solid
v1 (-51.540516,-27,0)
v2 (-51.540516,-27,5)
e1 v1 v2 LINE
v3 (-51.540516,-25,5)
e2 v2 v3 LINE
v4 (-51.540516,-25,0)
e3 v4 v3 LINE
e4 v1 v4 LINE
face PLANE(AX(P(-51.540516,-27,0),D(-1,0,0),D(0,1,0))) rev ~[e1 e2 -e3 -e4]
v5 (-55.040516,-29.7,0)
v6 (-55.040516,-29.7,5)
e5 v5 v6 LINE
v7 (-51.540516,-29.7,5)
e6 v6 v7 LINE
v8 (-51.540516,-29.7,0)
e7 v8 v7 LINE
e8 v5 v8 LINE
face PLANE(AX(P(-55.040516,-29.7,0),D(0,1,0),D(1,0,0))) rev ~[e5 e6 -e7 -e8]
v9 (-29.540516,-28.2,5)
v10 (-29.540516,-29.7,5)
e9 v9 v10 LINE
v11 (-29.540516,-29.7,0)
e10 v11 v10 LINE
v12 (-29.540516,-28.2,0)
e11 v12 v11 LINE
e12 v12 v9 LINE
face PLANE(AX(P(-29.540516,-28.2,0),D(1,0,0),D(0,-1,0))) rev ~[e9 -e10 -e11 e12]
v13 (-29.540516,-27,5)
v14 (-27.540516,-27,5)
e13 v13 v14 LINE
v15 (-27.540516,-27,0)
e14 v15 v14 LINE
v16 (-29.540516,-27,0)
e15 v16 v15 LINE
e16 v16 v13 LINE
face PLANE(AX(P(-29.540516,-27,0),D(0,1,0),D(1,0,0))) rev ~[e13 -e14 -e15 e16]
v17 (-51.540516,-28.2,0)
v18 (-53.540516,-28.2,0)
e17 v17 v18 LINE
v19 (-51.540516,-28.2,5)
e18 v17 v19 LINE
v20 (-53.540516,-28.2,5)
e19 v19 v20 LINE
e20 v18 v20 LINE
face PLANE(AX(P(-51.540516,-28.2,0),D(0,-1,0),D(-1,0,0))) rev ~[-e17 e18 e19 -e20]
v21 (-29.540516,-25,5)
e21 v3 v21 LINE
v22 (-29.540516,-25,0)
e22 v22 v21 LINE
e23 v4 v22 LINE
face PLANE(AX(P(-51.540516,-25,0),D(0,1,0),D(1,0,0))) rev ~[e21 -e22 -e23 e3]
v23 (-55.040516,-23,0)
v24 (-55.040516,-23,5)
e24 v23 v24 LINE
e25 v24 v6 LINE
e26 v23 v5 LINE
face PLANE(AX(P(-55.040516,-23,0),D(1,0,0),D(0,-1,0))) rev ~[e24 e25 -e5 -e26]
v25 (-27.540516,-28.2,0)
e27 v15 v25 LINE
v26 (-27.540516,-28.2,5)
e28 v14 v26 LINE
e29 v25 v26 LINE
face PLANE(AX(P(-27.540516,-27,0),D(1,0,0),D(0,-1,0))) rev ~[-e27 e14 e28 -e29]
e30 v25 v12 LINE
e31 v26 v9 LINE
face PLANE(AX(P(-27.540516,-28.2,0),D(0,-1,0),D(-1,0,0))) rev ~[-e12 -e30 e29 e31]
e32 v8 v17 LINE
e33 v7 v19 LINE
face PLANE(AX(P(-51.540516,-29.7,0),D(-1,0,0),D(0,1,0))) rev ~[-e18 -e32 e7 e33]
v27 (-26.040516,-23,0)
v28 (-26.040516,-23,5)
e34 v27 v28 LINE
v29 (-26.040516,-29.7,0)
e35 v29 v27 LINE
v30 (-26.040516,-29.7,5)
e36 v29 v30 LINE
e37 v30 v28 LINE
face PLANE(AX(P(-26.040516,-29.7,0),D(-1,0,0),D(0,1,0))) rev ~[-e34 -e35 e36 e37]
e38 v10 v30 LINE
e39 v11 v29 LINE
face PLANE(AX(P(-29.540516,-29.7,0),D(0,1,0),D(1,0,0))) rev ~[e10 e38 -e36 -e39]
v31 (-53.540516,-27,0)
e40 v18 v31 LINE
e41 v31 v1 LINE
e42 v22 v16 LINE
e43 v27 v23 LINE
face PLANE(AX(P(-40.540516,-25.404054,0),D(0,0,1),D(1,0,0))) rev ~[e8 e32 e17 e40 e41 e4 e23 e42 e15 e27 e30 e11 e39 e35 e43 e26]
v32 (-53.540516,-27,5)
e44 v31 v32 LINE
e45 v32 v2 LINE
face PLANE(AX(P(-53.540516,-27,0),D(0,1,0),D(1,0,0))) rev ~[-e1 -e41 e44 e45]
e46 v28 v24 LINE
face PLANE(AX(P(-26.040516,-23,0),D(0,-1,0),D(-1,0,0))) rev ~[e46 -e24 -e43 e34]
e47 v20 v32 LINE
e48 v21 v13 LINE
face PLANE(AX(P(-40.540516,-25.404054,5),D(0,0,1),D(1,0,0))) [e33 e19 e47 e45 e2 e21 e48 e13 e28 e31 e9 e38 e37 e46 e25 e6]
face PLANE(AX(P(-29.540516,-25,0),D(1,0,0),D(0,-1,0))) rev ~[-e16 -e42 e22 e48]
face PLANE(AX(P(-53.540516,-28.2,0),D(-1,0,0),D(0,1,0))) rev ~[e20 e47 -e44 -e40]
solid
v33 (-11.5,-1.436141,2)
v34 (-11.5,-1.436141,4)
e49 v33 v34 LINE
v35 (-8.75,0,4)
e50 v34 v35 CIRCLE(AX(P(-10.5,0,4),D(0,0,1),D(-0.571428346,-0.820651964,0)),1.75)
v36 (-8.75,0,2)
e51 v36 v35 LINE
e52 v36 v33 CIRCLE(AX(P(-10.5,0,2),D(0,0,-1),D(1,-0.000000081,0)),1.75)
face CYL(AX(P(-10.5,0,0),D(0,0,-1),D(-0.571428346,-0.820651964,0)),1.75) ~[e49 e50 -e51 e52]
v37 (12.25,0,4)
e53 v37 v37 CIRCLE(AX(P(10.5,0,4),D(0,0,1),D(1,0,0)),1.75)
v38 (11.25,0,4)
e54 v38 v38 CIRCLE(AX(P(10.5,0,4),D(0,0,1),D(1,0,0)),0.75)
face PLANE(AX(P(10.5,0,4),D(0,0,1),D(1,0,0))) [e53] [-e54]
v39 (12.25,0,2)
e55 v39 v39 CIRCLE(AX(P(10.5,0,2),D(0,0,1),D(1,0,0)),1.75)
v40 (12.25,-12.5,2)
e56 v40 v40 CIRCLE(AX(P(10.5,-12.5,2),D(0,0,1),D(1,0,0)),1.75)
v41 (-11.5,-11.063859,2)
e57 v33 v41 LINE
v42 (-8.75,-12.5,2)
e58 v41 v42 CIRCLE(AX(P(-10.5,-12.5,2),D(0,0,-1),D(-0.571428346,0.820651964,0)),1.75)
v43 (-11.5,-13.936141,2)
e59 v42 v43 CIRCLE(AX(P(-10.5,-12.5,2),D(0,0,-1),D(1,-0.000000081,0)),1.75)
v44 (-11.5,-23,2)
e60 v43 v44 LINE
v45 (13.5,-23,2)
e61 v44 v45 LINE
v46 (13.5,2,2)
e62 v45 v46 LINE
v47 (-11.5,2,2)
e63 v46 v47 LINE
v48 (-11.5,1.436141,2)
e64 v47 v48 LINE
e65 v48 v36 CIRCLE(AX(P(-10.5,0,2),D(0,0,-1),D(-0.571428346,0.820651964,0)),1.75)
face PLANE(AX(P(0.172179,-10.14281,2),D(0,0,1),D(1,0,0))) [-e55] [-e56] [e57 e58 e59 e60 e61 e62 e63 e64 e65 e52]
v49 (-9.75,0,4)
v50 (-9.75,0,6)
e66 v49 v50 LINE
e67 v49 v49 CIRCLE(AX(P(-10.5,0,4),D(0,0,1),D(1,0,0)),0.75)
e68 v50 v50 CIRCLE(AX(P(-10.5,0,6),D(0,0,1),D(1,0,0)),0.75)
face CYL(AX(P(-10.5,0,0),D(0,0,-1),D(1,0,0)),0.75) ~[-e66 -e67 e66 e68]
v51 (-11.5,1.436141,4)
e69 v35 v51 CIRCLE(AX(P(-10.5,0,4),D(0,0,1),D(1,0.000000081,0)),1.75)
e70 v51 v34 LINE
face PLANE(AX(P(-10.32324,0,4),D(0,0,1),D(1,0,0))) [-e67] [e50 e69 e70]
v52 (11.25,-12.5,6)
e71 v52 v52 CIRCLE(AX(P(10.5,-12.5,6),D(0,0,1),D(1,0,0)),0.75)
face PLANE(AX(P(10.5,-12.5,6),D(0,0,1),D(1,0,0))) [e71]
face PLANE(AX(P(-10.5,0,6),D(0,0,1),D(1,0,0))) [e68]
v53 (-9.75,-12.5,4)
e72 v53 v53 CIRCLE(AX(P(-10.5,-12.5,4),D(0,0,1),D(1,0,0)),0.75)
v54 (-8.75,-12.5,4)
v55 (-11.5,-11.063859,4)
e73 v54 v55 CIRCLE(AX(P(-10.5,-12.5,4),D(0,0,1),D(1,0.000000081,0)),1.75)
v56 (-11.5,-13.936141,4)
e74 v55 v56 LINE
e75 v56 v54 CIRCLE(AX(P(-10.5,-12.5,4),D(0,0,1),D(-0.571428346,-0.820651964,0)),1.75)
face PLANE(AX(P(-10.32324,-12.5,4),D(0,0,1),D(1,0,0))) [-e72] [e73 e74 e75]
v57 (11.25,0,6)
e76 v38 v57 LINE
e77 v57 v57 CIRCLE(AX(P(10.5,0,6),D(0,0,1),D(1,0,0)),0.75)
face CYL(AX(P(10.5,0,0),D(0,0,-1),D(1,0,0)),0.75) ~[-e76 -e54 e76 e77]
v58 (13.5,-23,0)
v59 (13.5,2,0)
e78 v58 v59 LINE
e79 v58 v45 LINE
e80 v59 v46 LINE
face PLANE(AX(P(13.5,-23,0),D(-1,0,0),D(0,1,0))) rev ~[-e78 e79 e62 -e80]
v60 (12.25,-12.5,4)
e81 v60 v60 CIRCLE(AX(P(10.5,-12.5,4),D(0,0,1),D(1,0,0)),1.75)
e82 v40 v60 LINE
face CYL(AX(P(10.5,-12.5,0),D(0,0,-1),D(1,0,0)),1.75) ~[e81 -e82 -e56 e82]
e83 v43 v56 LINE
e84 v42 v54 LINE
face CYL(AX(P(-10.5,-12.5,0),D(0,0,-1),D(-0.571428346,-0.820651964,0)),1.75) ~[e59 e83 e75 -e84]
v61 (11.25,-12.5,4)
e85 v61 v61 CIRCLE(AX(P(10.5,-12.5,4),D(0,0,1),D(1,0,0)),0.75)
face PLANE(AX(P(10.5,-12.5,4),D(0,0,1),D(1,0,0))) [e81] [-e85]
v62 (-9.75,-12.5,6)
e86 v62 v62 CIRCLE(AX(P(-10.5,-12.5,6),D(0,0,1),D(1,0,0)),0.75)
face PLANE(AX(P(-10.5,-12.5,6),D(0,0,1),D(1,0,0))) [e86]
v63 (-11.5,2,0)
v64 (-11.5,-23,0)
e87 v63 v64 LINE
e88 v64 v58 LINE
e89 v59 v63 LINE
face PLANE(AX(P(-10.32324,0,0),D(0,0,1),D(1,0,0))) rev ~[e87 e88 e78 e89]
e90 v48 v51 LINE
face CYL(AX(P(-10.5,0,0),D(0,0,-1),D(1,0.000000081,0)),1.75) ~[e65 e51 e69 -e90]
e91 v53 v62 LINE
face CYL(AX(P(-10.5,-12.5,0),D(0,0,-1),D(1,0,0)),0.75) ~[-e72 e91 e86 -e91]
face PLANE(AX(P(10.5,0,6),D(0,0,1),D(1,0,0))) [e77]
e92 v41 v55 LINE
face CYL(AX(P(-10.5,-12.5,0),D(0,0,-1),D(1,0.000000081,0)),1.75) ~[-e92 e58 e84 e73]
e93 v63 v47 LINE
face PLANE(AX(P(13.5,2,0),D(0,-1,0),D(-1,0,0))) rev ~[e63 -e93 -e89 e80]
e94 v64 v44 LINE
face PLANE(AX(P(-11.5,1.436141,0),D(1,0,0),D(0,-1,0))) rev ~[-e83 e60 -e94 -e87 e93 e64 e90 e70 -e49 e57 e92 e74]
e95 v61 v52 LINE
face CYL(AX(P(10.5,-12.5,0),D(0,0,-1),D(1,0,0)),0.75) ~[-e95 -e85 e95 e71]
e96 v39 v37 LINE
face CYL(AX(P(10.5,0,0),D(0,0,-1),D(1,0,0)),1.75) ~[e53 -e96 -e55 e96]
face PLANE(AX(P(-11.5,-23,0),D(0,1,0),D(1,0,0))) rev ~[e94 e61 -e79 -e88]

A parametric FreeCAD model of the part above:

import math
import FreeCAD as App
import Part
import Sketcher
from FreeCAD import Vector


def add_polygon(sketch, points):
    """Adds a closed chain of lines whose ends are joined by coincident constraints."""
    first, n = sketch.GeometryCount, len(points)
    for a, b in zip(points, points[1:] + points[:1]):
        sketch.addGeometry(Part.LineSegment(App.Vector(*a, 0), App.Vector(*b, 0)), False)
    for i in range(n):
        sketch.addConstraint(Sketcher.Constraint("Coincident", first + i, 2, first + (i + 1) % n, 1))

doc = App.newDocument("Part")
body = doc.addObject("PartDesign::Body", "Body")

# Sketch on XY plane
sketch1 = body.newObject("Sketcher::SketchObject", "Sketch")
sketch1.AttachmentSupport = (doc.getObject("XY_Plane"), [""])
sketch1.MapMode = "FlatFace"
sketch1.addGeometry([
    Part.LineSegment(Vector(13.5, 2, 0), Vector(-11.5, 2, 0)),  # 0
    Part.LineSegment(Vector(-11.5, 2, 0), Vector(-11.5, 1.436141, 0)),  # 1
    Part.ArcOfCircle(Part.Circle(Vector(-10.5, 0, 0), Vector(0, 0, 1), 1.75), math.radians(0.000005), math.radians(124.849889)),  # 2
    Part.ArcOfCircle(Part.Circle(Vector(-10.5, 0, 0), Vector(0, 0, 1), 1.75), math.radians(-124.849889), math.radians(-0.000005)),  # 3
    Part.LineSegment(Vector(-11.5, -1.436141, 0), Vector(-11.5, -11.063859, 0)),  # 4
    Part.ArcOfCircle(Part.Circle(Vector(-10.5, -12.5, 0), Vector(0, 0, 1), 1.75), math.radians(0.000005), math.radians(124.849889)),  # 5
    Part.ArcOfCircle(Part.Circle(Vector(-10.5, -12.5, 0), Vector(0, 0, 1), 1.75), math.radians(-124.849889), math.radians(-0.000005)),  # 6
    Part.LineSegment(Vector(-11.5, -13.936141, 0), Vector(-11.5, -23, 0)),  # 7
    Part.LineSegment(Vector(-11.5, -23, 0), Vector(13.5, -23, 0)),  # 8
    Part.LineSegment(Vector(13.5, -23, 0), Vector(13.5, 2, 0)),  # 9
    Part.Circle(Vector(10.5, -12.5, 0), Vector(0, 0, 1), 1.75),  # 10
    Part.Circle(Vector(10.5, 0, 0), Vector(0, 0, 1), 1.75),  # 11
], False)
sketch1.addConstraint([
    Sketcher.Constraint("Coincident", 0, 2, 1, 1),
    Sketcher.Constraint("Coincident", 1, 2, 2, 2),
    Sketcher.Constraint("Tangent", 2, 1, 3, 2),
    Sketcher.Constraint("Coincident", 3, 1, 4, 1),
    Sketcher.Constraint("Coincident", 4, 2, 5, 2),
    Sketcher.Constraint("Tangent", 5, 1, 6, 2),
    Sketcher.Constraint("Coincident", 6, 1, 7, 1),
    Sketcher.Constraint("Coincident", 7, 2, 8, 1),
    Sketcher.Constraint("Coincident", 8, 2, 9, 1),
    Sketcher.Constraint("Coincident", 9, 2, 0, 1),
    Sketcher.Constraint("Horizontal", 0),
    Sketcher.Constraint("Vertical", 1),
    Sketcher.Constraint("Vertical", 4),
    Sketcher.Constraint("Vertical", 7),
    Sketcher.Constraint("Horizontal", 8),
    Sketcher.Constraint("Vertical", 9),
    Sketcher.Constraint("Equal", 2, 3),
    Sketcher.Constraint("Equal", 3, 5),
    Sketcher.Constraint("Equal", 5, 6),
    Sketcher.Constraint("Equal", 6, 10),
    Sketcher.Constraint("Equal", 10, 11),
    Sketcher.Constraint("Symmetric", 2, 3, 11, 3, -1, 1),
    Sketcher.Constraint("Symmetric", 5, 3, 10, 3, -2),
    Sketcher.Constraint("Symmetric", 1, 2, 3, 1, -1),
    Sketcher.Constraint("PointOnObject", 2, 1, -1),
    Sketcher.Constraint("Horizontal", 10, 3, 5, 1),
    Sketcher.Constraint("Vertical", 3, 3, 5, 3),
    Sketcher.Constraint("Vertical", 4, 2, 6, 1),
    Sketcher.Constraint("Equal", 8, 9),
    Sketcher.Constraint("Diameter", 10, 3.5),
    Sketcher.Constraint("DistanceX", 0, 2, 0, 1, 25.0),
    Sketcher.Constraint("DistanceY", -1, 1, 0, 2, 2.0),
    Sketcher.Constraint("DistanceX", 5, 3, 10, 3, 21.0),
    Sketcher.Constraint("DistanceX", 0, 2, 3, 3, 1.0),
    Sketcher.Constraint("DistanceY", 5, 3, -1, 1, 12.5),
])
pad1 = body.newObject("PartDesign::Pad", "Pad")
pad1.Profile = sketch1
pad1.Length = 2

# Sketch on XY plane
sketch2 = body.newObject("Sketcher::SketchObject", "Sketch001")
sketch2.AttachmentSupport = (doc.getObject("XY_Plane"), [""])
sketch2.MapMode = "FlatFace"
sketch2.addGeometry([
    Part.ArcOfCircle(Part.Circle(Vector(-10.5, 0, 0), Vector(0, 0, 1), 1.75), math.radians(0.000005), math.radians(124.849889)),  # 0
    Part.LineSegment(Vector(-11.5, 1.436141, 0), Vector(-11.5, -1.436141, 0)),  # 1
    Part.ArcOfCircle(Part.Circle(Vector(-10.5, 0, 0), Vector(0, 0, 1), 1.75), math.radians(-124.849889), math.radians(-0.000005)),  # 2
    Part.Circle(Vector(-10.5, 0, 0), Vector(0, 0, 1), 0.75),  # 3
    Part.Circle(Vector(10.5, 0, 0), Vector(0, 0, 1), 1.75),  # 4
    Part.Circle(Vector(10.5, 0, 0), Vector(0, 0, 1), 0.75),  # 5
    Part.Circle(Vector(10.5, -12.5, 0), Vector(0, 0, 1), 1.75),  # 6
    Part.Circle(Vector(10.5, -12.5, 0), Vector(0, 0, 1), 0.75),  # 7
    Part.ArcOfCircle(Part.Circle(Vector(-10.5, -12.5, 0), Vector(0, 0, 1), 1.75), math.radians(0.000005), math.radians(124.849889)),  # 8
    Part.LineSegment(Vector(-11.5, -11.063859, 0), Vector(-11.5, -13.936141, 0)),  # 9
    Part.ArcOfCircle(Part.Circle(Vector(-10.5, -12.5, 0), Vector(0, 0, 1), 1.75), math.radians(-124.849889), math.radians(-0.000005)),  # 10
    Part.Circle(Vector(-10.5, -12.5, 0), Vector(0, 0, 1), 0.75),  # 11
], False)
sketch2.addConstraint([
    Sketcher.Constraint("Coincident", 0, 2, 1, 1),
    Sketcher.Constraint("Coincident", 1, 2, 2, 1),
    Sketcher.Constraint("Tangent", 2, 2, 0, 1),
    Sketcher.Constraint("Coincident", 8, 2, 9, 1),
    Sketcher.Constraint("Coincident", 9, 2, 10, 1),
    Sketcher.Constraint("Tangent", 10, 2, 8, 1),
    Sketcher.Constraint("Vertical", 1),
    Sketcher.Constraint("Vertical", 9),
    Sketcher.Constraint("Coincident", 3, 3, 0, 3),
    Sketcher.Constraint("Coincident", 5, 3, 4, 3),
    Sketcher.Constraint("Coincident", 7, 3, 6, 3),
    Sketcher.Constraint("Coincident", 11, 3, 8, 3),
    Sketcher.Constraint("Equal", 0, 2),
    Sketcher.Constraint("Equal", 2, 4),
    Sketcher.Constraint("Equal", 3, 5),
    Sketcher.Constraint("Equal", 4, 6),
    Sketcher.Constraint("Equal", 5, 7),
    Sketcher.Constraint("Equal", 6, 8),
    Sketcher.Constraint("Equal", 8, 10),
    Sketcher.Constraint("Equal", 7, 11),
    Sketcher.Constraint("Symmetric", 0, 3, 4, 3, -1, 1),
    Sketcher.Constraint("Symmetric", 6, 3, 8, 3, -2),
    Sketcher.Constraint("PointOnObject", 0, 3, -1),
    Sketcher.Constraint("PointOnObject", 2, 2, -1),
    Sketcher.Constraint("Horizontal", 11, 3, 10, 2),
    Sketcher.Constraint("Vertical", 5, 3, 6, 3),
    Sketcher.Constraint("Vertical", 1, 2, 8, 2),
    Sketcher.Constraint("Diameter", 3, 1.5),
    Sketcher.Constraint("Diameter", 4, 3.5),
    Sketcher.Constraint("DistanceX", 3, 3, 4, 3, 21.0),
    Sketcher.Constraint("DistanceX", 0, 2, 2, 3, 1.0),
    Sketcher.Constraint("DistanceY", 6, 3, -1, 1, 12.5),
])
pad2 = body.newObject("PartDesign::Pad", "Pad001")
pad2.Profile = sketch2
pad2.Length = 4

# Sketch on XY plane
sketch3 = body.newObject("Sketcher::SketchObject", "Sketch002")
sketch3.AttachmentSupport = (doc.getObject("XY_Plane"), [""])
sketch3.MapMode = "FlatFace"
sketch3.addGeometry([
    Part.Circle(Vector(-10.5, 0, 0), Vector(0, 0, 1), 0.75),
    Part.Circle(Vector(10.5, 0, 0), Vector(0, 0, 1), 0.75),
    Part.Circle(Vector(10.5, -12.5, 0), Vector(0, 0, 1), 0.75),
    Part.Circle(Vector(-10.5, -12.5, 0), Vector(0, 0, 1), 0.75),
], False)
sketch3.addConstraint([
    Sketcher.Constraint("Equal", 0, 1),
    Sketcher.Constraint("Equal", 1, 2),
    Sketcher.Constraint("Equal", 2, 3),
    Sketcher.Constraint("Symmetric", 0, 3, 1, 3, -1, 1),
    Sketcher.Constraint("Symmetric", 2, 3, 3, 3, -2),
    Sketcher.Constraint("PointOnObject", 0, 3, -1),
    Sketcher.Constraint("Vertical", 1, 3, 2, 3),
    Sketcher.Constraint("Diameter", 0, 1.5),
    Sketcher.Constraint("DistanceX", 0, 3, 1, 3, 21.0),
    Sketcher.Constraint("DistanceY", 2, 3, -1, 1, 12.5),
])
pad3 = body.newObject("PartDesign::Pad", "Pad002")
pad3.Profile = sketch3
pad3.Length = 6
body2 = doc.addObject("PartDesign::Body", "Body001")

# Sketch on XY plane
sketch4 = body2.newObject("Sketcher::SketchObject", "Sketch003")
sketch4.AttachmentSupport = (doc.getObject("XY_Plane001"), [""])
sketch4.MapMode = "FlatFace"
add_polygon(sketch4, [(-26.040516, -23), (-55.040516, -23), (-55.040516, -29.7), (-51.540516, -29.7), (-51.540516, -28.2), (-53.540516, -28.2), (-53.540516, -27), (-51.540516, -27), (-51.540516, -25), (-29.540516, -25), (-29.540516, -27), (-27.540516, -27), (-27.540516, -28.2), (-29.540516, -28.2), (-29.540516, -29.7), (-26.040516, -29.7)])  # lines 0-15
sketch4.addConstraint([
    Sketcher.Constraint("Horizontal", 0),
    Sketcher.Constraint("Vertical", 1),
    Sketcher.Constraint("Horizontal", 2),
    Sketcher.Constraint("Vertical", 3),
    Sketcher.Constraint("Horizontal", 4),
    Sketcher.Constraint("Vertical", 5),
    Sketcher.Constraint("Horizontal", 6),
    Sketcher.Constraint("Vertical", 7),
    Sketcher.Constraint("Horizontal", 8),
    Sketcher.Constraint("Vertical", 9),
    Sketcher.Constraint("Horizontal", 10),
    Sketcher.Constraint("Vertical", 11),
    Sketcher.Constraint("Horizontal", 12),
    Sketcher.Constraint("Vertical", 13),
    Sketcher.Constraint("Horizontal", 14),
    Sketcher.Constraint("Vertical", 15),
    Sketcher.Constraint("Horizontal", 6, 2, 9, 2),
    Sketcher.Constraint("Horizontal", 4, 2, 11, 2),
    Sketcher.Constraint("Horizontal", 2, 2, 13, 2),
    Sketcher.Constraint("Vertical", 3, 2, 6, 2),
    Sketcher.Constraint("Vertical", 9, 2, 12, 2),
    Sketcher.Constraint("Equal", 6, 10),
    Sketcher.Constraint("Equal", 2, 14),
    Sketcher.Constraint("Equal", 12, 7),
    Sketcher.Constraint("DistanceX", 0, 2, 0, 1, 29.0),
    Sketcher.Constraint("DistanceX", 4, 2, 4, 1, 2.0),
    Sketcher.Constraint("DistanceX", 8, 1, 8, 2, 22.0),
    Sketcher.Constraint("DistanceY", 1, 2, 1, 1, 6.7),
    Sketcher.Constraint("DistanceY", 3, 1, 3, 2, 1.5),
    Sketcher.Constraint("DistanceY", 5, 1, 5, 2, 1.2),
    Sketcher.Constraint("DistanceY", 0, 2, -1, 1, 23.0),
    Sketcher.Constraint("DistanceX", 0, 2, -1, 1, 55.040516),
])
pad4 = body2.newObject("PartDesign::Pad", "Pad003")
pad4.Profile = sketch4
pad4.Length = 5

doc.recompute()
